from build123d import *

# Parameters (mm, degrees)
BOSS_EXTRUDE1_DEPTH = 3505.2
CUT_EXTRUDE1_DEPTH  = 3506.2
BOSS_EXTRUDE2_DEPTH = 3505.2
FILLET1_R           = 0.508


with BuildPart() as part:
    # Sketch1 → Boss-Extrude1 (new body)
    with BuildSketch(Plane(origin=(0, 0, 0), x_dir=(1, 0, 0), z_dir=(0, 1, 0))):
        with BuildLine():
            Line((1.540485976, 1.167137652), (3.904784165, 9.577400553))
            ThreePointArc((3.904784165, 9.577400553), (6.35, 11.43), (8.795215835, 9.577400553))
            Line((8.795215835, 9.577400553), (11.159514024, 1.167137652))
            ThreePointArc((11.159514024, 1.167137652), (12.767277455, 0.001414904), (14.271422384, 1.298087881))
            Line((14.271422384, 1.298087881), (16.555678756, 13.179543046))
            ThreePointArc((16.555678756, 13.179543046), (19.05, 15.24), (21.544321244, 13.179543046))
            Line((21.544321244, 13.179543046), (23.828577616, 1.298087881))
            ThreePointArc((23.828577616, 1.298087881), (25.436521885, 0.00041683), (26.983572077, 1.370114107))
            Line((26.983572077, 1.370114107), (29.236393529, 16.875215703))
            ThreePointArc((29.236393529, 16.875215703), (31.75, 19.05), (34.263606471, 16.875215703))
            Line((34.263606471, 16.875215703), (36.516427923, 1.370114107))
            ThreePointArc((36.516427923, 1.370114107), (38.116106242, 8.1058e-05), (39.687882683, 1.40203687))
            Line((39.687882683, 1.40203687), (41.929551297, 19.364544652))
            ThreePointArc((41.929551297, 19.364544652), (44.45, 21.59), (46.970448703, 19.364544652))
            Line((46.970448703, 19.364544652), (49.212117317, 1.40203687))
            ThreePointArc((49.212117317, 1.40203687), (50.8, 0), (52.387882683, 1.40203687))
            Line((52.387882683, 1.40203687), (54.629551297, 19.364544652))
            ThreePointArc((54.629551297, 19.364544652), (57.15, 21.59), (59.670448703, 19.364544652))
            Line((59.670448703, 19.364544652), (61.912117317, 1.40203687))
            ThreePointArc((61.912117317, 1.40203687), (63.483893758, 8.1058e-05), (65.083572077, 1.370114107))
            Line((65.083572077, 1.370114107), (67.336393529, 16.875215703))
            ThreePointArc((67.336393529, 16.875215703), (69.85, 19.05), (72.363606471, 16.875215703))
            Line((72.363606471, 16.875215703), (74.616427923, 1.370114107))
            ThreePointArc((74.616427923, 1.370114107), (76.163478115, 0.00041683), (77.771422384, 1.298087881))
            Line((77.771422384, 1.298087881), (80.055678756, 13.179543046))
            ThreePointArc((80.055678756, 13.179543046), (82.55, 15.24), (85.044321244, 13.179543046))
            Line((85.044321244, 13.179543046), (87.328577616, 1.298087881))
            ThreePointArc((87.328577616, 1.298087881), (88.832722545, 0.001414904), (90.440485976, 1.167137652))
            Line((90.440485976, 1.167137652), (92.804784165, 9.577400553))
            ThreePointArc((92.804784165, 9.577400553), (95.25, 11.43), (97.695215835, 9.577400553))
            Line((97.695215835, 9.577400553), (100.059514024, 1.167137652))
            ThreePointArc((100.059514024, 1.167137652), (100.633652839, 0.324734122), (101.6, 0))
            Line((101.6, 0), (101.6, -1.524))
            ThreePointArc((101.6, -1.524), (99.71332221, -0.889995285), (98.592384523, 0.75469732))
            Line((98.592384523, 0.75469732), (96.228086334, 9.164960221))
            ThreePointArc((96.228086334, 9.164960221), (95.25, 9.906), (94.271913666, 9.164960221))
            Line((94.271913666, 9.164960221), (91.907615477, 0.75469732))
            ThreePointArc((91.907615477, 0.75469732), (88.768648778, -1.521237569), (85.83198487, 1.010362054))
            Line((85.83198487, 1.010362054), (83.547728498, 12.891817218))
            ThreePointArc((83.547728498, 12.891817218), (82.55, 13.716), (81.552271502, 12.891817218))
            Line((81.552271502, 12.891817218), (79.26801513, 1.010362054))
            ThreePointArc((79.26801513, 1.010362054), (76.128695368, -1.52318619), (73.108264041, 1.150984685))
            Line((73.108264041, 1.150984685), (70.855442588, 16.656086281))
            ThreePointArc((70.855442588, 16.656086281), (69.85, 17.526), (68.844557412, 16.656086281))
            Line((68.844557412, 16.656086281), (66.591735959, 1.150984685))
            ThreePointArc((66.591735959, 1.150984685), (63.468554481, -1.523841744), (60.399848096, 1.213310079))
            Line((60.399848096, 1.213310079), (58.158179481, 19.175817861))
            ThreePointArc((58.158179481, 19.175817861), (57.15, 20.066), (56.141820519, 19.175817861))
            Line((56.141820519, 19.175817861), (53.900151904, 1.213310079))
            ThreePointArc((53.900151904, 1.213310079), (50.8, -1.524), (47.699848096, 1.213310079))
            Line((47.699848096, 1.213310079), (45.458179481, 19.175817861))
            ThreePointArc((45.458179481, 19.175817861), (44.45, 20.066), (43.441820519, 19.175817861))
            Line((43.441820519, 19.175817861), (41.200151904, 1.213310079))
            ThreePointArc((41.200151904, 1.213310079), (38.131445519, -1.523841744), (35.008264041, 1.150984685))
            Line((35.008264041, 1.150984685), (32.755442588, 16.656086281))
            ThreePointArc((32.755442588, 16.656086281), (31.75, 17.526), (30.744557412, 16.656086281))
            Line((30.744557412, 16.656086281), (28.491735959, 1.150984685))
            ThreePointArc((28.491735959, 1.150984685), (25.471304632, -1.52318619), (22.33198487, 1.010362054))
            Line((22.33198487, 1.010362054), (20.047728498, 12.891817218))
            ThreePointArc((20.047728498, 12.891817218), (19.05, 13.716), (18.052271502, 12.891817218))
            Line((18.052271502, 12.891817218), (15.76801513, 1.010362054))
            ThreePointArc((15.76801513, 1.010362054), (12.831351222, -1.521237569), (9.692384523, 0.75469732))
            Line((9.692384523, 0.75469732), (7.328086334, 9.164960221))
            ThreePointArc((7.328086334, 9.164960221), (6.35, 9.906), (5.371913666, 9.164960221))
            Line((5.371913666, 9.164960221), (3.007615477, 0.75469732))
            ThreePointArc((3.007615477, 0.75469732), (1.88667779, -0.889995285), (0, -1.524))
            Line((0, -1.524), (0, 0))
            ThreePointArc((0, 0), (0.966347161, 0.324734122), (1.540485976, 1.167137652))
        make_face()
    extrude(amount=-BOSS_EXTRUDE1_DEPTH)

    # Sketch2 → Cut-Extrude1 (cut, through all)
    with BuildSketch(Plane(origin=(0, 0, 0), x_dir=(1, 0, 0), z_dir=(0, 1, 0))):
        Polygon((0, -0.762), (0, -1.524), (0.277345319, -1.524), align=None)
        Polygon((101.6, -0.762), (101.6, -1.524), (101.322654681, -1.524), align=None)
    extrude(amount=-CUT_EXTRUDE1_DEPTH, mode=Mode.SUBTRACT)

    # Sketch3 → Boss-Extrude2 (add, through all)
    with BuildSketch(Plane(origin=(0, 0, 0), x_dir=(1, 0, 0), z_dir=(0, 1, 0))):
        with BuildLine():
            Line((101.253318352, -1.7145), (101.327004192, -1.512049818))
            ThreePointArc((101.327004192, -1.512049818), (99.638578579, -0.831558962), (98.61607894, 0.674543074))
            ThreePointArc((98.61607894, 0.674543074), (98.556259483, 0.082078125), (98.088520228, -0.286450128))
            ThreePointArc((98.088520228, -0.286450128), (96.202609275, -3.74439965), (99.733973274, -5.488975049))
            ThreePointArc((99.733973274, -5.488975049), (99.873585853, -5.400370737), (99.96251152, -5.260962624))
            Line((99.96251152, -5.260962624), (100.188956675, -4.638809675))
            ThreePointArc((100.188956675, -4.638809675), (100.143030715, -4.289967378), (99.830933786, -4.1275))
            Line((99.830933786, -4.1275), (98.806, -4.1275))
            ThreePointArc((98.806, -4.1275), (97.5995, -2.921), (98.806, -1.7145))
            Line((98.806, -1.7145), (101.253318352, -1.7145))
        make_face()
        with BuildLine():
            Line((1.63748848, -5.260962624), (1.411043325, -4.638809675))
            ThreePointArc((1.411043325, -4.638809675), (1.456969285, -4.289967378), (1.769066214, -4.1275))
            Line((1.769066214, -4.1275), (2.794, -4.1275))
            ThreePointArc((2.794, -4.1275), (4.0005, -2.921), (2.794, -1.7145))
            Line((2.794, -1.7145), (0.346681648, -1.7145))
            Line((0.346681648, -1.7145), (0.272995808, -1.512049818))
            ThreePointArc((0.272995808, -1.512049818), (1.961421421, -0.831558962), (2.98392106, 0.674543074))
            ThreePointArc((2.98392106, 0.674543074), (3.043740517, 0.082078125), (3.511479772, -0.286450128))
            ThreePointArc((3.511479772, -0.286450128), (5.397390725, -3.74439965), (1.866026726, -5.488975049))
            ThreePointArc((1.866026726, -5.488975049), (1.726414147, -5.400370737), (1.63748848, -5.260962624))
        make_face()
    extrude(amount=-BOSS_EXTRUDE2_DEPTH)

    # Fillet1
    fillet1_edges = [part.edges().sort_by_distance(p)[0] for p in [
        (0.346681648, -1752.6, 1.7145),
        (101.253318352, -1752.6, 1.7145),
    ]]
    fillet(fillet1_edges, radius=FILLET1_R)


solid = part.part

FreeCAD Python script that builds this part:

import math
import FreeCAD as App
import Part
import Sketcher
from FreeCAD import Vector
Q = App.Units.Quantity


def edges_at(feature, points):
    """Names of the edges that pass closest to the given points."""
    edges = feature.Shape.Edges
    near = lambda p: min(range(len(edges)), key=lambda i: edges[i].distToShape(Part.Vertex(*p))[0])
    return sorted({f"Edge{near(p) + 1}" for p in points})

doc = App.newDocument("Part")
body = doc.addObject("PartDesign::Body", "Body")

sketch1 = body.newObject("Sketcher::SketchObject", "Sketch")
sketch1.AttachmentSupport = (doc.getObject("XZ_Plane"), [""])
sketch1.MapMode = "FlatFace"
sketch1.addGeometry([
    Part.LineSegment(Vector(3.9, -9.6, 0), Vector(1.5, -1.2, 0)),
    Part.ArcOfCircle(Part.Circle(Vector(0, -1.6, 0), Vector(0, 0, 1), 1.6), math.radians(16), math.radians(90)),
    Part.LineSegment(Vector(0, 0, 0), Vector(0, 1.5, 0)),
    Part.ArcOfCircle(Part.Circle(Vector(0, -1.6, 0), Vector(0, 0, 1), 3.1), math.radians(16), math.radians(90)),
    Part.LineSegment(Vector(3, -0.8, 0), Vector(5.4, -9.2, 0)),
    Part.ArcOfCircle(Part.Circle(Vector(6.3, -8.9, 0), Vector(0, 0, 1), 1), math.radians(-164), math.radians(-16)),
    Part.LineSegment(Vector(7.3, -9.2, 0), Vector(9.7, -0.8, 0)),
    Part.ArcOfCircle(Part.Circle(Vector(12.7, -1.6, 0), Vector(0, 0, 1), 3.1), math.radians(11), math.radians(164)),
    Part.LineSegment(Vector(15.8, -1, 0), Vector(18.1, -12.9, 0)),
    Part.ArcOfCircle(Part.Circle(Vector(19.1, -12.7, 0), Vector(0, 0, 1), 1), math.radians(-169), math.radians(-11)),
    Part.LineSegment(Vector(20, -12.9, 0), Vector(22.3, -1, 0)),
    Part.ArcOfCircle(Part.Circle(Vector(25.4, -1.6, 0), Vector(0, 0, 1), 3.1), math.radians(8), math.radians(169)),
    Part.LineSegment(Vector(28.5, -1.2, 0), Vector(30.7, -16.7, 0)),
    Part.ArcOfCircle(Part.Circle(Vector(31.8, -16.5, 0), Vector(0, 0, 1), 1), math.radians(-172), math.radians(-8)),
    Part.LineSegment(Vector(32.8, -16.7, 0), Vector(35, -1.2, 0)),
    Part.ArcOfCircle(Part.Circle(Vector(38.1, -1.6, 0), Vector(0, 0, 1), 3.1), math.radians(7), math.radians(172)),
    Part.LineSegment(Vector(41.2, -1.2, 0), Vector(43.4, -19.2, 0)),
    Part.ArcOfCircle(Part.Circle(Vector(44.5, -19.1, 0), Vector(0, 0, 1), 1), math.radians(-173), math.radians(-7)),
    Part.LineSegment(Vector(45.5, -19.2, 0), Vector(47.7, -1.2, 0)),
    Part.ArcOfCircle(Part.Circle(Vector(50.8, -1.6, 0), Vector(0, 0, 1), 3.1), math.radians(7), math.radians(173)),
    Part.LineSegment(Vector(53.9, -1.2, 0), Vector(56.1, -19.2, 0)),
    Part.ArcOfCircle(Part.Circle(Vector(57.1, -19.1, 0), Vector(0, 0, 1), 1), math.radians(-173), math.radians(-7)),
    Part.LineSegment(Vector(58.2, -19.2, 0), Vector(60.4, -1.2, 0)),
    Part.ArcOfCircle(Part.Circle(Vector(63.5, -1.6, 0), Vector(0, 0, 1), 3.1), math.radians(8), math.radians(173)),
    Part.LineSegment(Vector(66.6, -1.2, 0), Vector(68.8, -16.7, 0)),
    Part.ArcOfCircle(Part.Circle(Vector(69.8, -16.5, 0), Vector(0, 0, 1), 1), math.radians(-172), math.radians(-8)),
    Part.LineSegment(Vector(70.9, -16.7, 0), Vector(73.1, -1.2, 0)),
    Part.ArcOfCircle(Part.Circle(Vector(76.2, -1.6, 0), Vector(0, 0, 1), 3.1), math.radians(11), math.radians(172)),
    Part.LineSegment(Vector(79.3, -1, 0), Vector(81.6, -12.9, 0)),
    Part.ArcOfCircle(Part.Circle(Vector(82.5, -12.7, 0), Vector(0, 0, 1), 1), math.radians(-169), math.radians(-11)),
    Part.LineSegment(Vector(83.5, -12.9, 0), Vector(85.8, -1, 0)),
    Part.ArcOfCircle(Part.Circle(Vector(88.9, -1.6, 0), Vector(0, 0, 1), 3.1), math.radians(16), math.radians(169)),
    Part.LineSegment(Vector(91.9, -0.8, 0), Vector(94.3, -9.2, 0)),
    Part.ArcOfCircle(Part.Circle(Vector(95.2, -8.9, 0), Vector(0, 0, 1), 1), math.radians(-164), math.radians(-16)),
    Part.LineSegment(Vector(96.2, -9.2, 0), Vector(98.6, -0.8, 0)),
    Part.ArcOfCircle(Part.Circle(Vector(101.6, -1.6, 0), Vector(0, 0, 1), 3.1), math.radians(90), math.radians(164)),
    Part.LineSegment(Vector(101.6, 1.5, 0), Vector(101.6, 0, 0)),
    Part.ArcOfCircle(Part.Circle(Vector(101.6, -1.6, 0), Vector(0, 0, 1), 1.6), math.radians(90), math.radians(164)),
    Part.LineSegment(Vector(100.1, -1.2, 0), Vector(97.7, -9.6, 0)),
    Part.ArcOfCircle(Part.Circle(Vector(95.2, -8.9, 0), Vector(0, 0, 1), 2.5), math.radians(-164), math.radians(-16)),
    Part.LineSegment(Vector(92.8, -9.6, 0), Vector(90.4, -1.2, 0)),
    Part.ArcOfCircle(Part.Circle(Vector(88.9, -1.6, 0), Vector(0, 0, 1), 1.6), math.radians(16), math.radians(169)),
    Part.LineSegment(Vector(87.3, -1.3, 0), Vector(85, -13.2, 0)),
    Part.ArcOfCircle(Part.Circle(Vector(82.5, -12.7, 0), Vector(0, 0, 1), 2.5), math.radians(-169), math.radians(-11)),
    Part.LineSegment(Vector(80.1, -13.2, 0), Vector(77.8, -1.3, 0)),
    Part.ArcOfCircle(Part.Circle(Vector(76.2, -1.6, 0), Vector(0, 0, 1), 1.6), math.radians(11), math.radians(172)),
    Part.LineSegment(Vector(74.6, -1.4, 0), Vector(72.4, -16.9, 0)),
    Part.ArcOfCircle(Part.Circle(Vector(69.8, -16.5, 0), Vector(0, 0, 1), 2.5), math.radians(-172), math.radians(-8)),
    Part.LineSegment(Vector(67.3, -16.9, 0), Vector(65.1, -1.4, 0)),
    Part.ArcOfCircle(Part.Circle(Vector(63.5, -1.6, 0), Vector(0, 0, 1), 1.6), math.radians(8), math.radians(173)),
    Part.LineSegment(Vector(61.9, -1.4, 0), Vector(59.7, -19.4, 0)),
    Part.ArcOfCircle(Part.Circle(Vector(57.1, -19, 0), Vector(0, 0, 1), 2.5), math.radians(-173), math.radians(-7)),
    Part.LineSegment(Vector(54.6, -19.4, 0), Vector(52.4, -1.4, 0)),
    Part.ArcOfCircle(Part.Circle(Vector(50.8, -1.6, 0), Vector(0, 0, 1), 1.6), math.radians(7), math.radians(173)),
    Part.LineSegment(Vector(49.2, -1.4, 0), Vector(47, -19.4, 0)),
    Part.ArcOfCircle(Part.Circle(Vector(44.5, -19, 0), Vector(0, 0, 1), 2.5), math.radians(-173), math.radians(-7)),
    Part.LineSegment(Vector(41.9, -19.4, 0), Vector(39.7, -1.4, 0)),
    Part.ArcOfCircle(Part.Circle(Vector(38.1, -1.6, 0), Vector(0, 0, 1), 1.6), math.radians(7), math.radians(172)),
    Part.LineSegment(Vector(36.5, -1.4, 0), Vector(34.3, -16.9, 0)),
    Part.ArcOfCircle(Part.Circle(Vector(31.8, -16.5, 0), Vector(0, 0, 1), 2.5), math.radians(-172), math.radians(-8)),
    Part.LineSegment(Vector(29.2, -16.9, 0), Vector(27, -1.4, 0)),
    Part.ArcOfCircle(Part.Circle(Vector(25.4, -1.6, 0), Vector(0, 0, 1), 1.6), math.radians(8), math.radians(169)),
    Part.LineSegment(Vector(23.8, -1.3, 0), Vector(21.5, -13.2, 0)),
    Part.ArcOfCircle(Part.Circle(Vector(19.1, -12.7, 0), Vector(0, 0, 1), 2.5), math.radians(-169), math.radians(-11)),
    Part.LineSegment(Vector(16.6, -13.2, 0), Vector(14.3, -1.3, 0)),
    Part.ArcOfCircle(Part.Circle(Vector(12.7, -1.6, 0), Vector(0, 0, 1), 1.6), math.radians(11), math.radians(164)),
    Part.LineSegment(Vector(11.2, -1.2, 0), Vector(8.8, -9.6, 0)),
    Part.ArcOfCircle(Part.Circle(Vector(6.3, -8.9, 0), Vector(0, 0, 1), 2.5), math.radians(-164), math.radians(-16)),
], False)
sketch1.addConstraint([
    Sketcher.Constraint("Tangent", 0, 2, 1, 1),
    Sketcher.Constraint("Coincident", 1, 2, 2, 1),
    Sketcher.Constraint("Coincident", 2, 2, 3, 2),
    Sketcher.Constraint("Tangent", 3, 1, 4, 1),
    Sketcher.Constraint("Tangent", 4, 2, 5, 1),
    Sketcher.Constraint("Tangent", 5, 2, 6, 1),
    Sketcher.Constraint("Tangent", 6, 2, 7, 2),
    Sketcher.Constraint("Tangent", 7, 1, 8, 1),
    Sketcher.Constraint("Tangent", 8, 2, 9, 1),
    Sketcher.Constraint("Tangent", 9, 2, 10, 1),
    Sketcher.Constraint("Tangent", 10, 2, 11, 2),
    Sketcher.Constraint("Tangent", 11, 1, 12, 1),
    Sketcher.Constraint("Tangent", 12, 2, 13, 1),
    Sketcher.Constraint("Tangent", 13, 2, 14, 1),
    Sketcher.Constraint("Tangent", 14, 2, 15, 2),
    Sketcher.Constraint("Tangent", 15, 1, 16, 1),
    Sketcher.Constraint("Tangent", 16, 2, 17, 1),
    Sketcher.Constraint("Tangent", 17, 2, 18, 1),
    Sketcher.Constraint("Tangent", 18, 2, 19, 2),
    Sketcher.Constraint("Tangent", 19, 1, 20, 1),
    Sketcher.Constraint("Tangent", 20, 2, 21, 1),
    Sketcher.Constraint("Tangent", 21, 2, 22, 1),
    Sketcher.Constraint("Tangent", 22, 2, 23, 2),
    Sketcher.Constraint("Tangent", 23, 1, 24, 1),
    Sketcher.Constraint("Tangent", 24, 2, 25, 1),
    Sketcher.Constraint("Tangent", 25, 2, 26, 1),
    Sketcher.Constraint("Tangent", 26, 2, 27, 2),
    Sketcher.Constraint("Tangent", 27, 1, 28, 1),
    Sketcher.Constraint("Tangent", 28, 2, 29, 1),
    Sketcher.Constraint("Tangent", 29, 2, 30, 1),
    Sketcher.Constraint("Tangent", 30, 2, 31, 2),
    Sketcher.Constraint("Tangent", 31, 1, 32, 1),
    Sketcher.Constraint("Tangent", 32, 2, 33, 1),
    Sketcher.Constraint("Tangent", 33, 2, 34, 1),
    Sketcher.Constraint("Tangent", 34, 2, 35, 2),
    Sketcher.Constraint("Coincident", 35, 1, 36, 1),
    Sketcher.Constraint("Coincident", 36, 2, 37, 1),
    Sketcher.Constraint("Tangent", 37, 2, 38, 1),
    Sketcher.Constraint("Tangent", 38, 2, 39, 2),
    Sketcher.Constraint("Tangent", 39, 1, 40, 1),
    Sketcher.Constraint("Tangent", 40, 2, 41, 1),
    Sketcher.Constraint("Tangent", 41, 2, 42, 1),
    Sketcher.Constraint("Tangent", 42, 2, 43, 2),
    Sketcher.Constraint("Tangent", 43, 1, 44, 1),
    Sketcher.Constraint("Tangent", 44, 2, 45, 1),
    Sketcher.Constraint("Tangent", 45, 2, 46, 1),
    Sketcher.Constraint("Tangent", 46, 2, 47, 2),
    Sketcher.Constraint("Tangent", 47, 1, 48, 1),
    Sketcher.Constraint("Tangent", 48, 2, 49, 1),
    Sketcher.Constraint("Tangent", 49, 2, 50, 1),
    Sketcher.Constraint("Tangent", 50, 2, 51, 2),
    Sketcher.Constraint("Tangent", 51, 1, 52, 1),
    Sketcher.Constraint("Tangent", 52, 2, 53, 1),
    Sketcher.Constraint("Tangent", 53, 2, 54, 1),
    Sketcher.Constraint("Tangent", 54, 2, 55, 2),
    Sketcher.Constraint("Tangent", 55, 1, 56, 1),
    Sketcher.Constraint("Tangent", 56, 2, 57, 1),
    Sketcher.Constraint("Tangent", 57, 2, 58, 1),
    Sketcher.Constraint("Tangent", 58, 2, 59, 2),
    Sketcher.Constraint("Tangent", 59, 1, 60, 1),
    Sketcher.Constraint("Tangent", 60, 2, 61, 1),
    Sketcher.Constraint("Tangent", 61, 2, 62, 1),
    Sketcher.Constraint("Tangent", 62, 2, 63, 2),
    Sketcher.Constraint("Tangent", 63, 1, 64, 1),
    Sketcher.Constraint("Tangent", 64, 2, 65, 1),
    Sketcher.Constraint("Tangent", 65, 2, 66, 1),
    Sketcher.Constraint("Tangent", 66, 2, 67, 2),
    Sketcher.Constraint("Tangent", 67, 1, 0, 1),
    Sketcher.Constraint("Vertical", 2),
    Sketcher.Constraint("Vertical", 36),
    Sketcher.Constraint("Coincident", 1, 2, -1, 1),
    Sketcher.Constraint("Coincident", 3, 3, 1, 3),
    Sketcher.Constraint("Coincident", 37, 3, 35, 3),
    Sketcher.Constraint("Coincident", 39, 3, 33, 3),
    Sketcher.Constraint("Coincident", 41, 3, 31, 3),
    Sketcher.Constraint("Coincident", 43, 3, 29, 3),
    Sketcher.Constraint("Coincident", 45, 3, 27, 3),
    Sketcher.Constraint("Coincident", 47, 3, 25, 3),
    Sketcher.Constraint("Coincident", 49, 3, 23, 3),
    Sketcher.Constraint("Coincident", 51, 3, 21, 3),
    Sketcher.Constraint("Coincident", 53, 3, 19, 3),
    Sketcher.Constraint("Coincident", 55, 3, 17, 3),
    Sketcher.Constraint("Coincident", 57, 3, 15, 3),
    Sketcher.Constraint("Coincident", 59, 3, 13, 3),
    Sketcher.Constraint("Coincident", 61, 3, 11, 3),
    Sketcher.Constraint("Coincident", 63, 3, 9, 3),
    Sketcher.Constraint("Coincident", 65, 3, 7, 3),
    Sketcher.Constraint("Coincident", 67, 3, 5, 3),
    Sketcher.Constraint("Equal", 3, 7),
    Sketcher.Constraint("Equal", 5, 9),
    Sketcher.Constraint("Equal", 7, 11),
    Sketcher.Constraint("Equal", 9, 13),
    Sketcher.Constraint("Equal", 11, 15),
    Sketcher.Constraint("Equal", 13, 17),
    Sketcher.Constraint("Equal", 15, 19),
    Sketcher.Constraint("Equal", 17, 21),
    Sketcher.Constraint("Equal", 19, 23),
    Sketcher.Constraint("Equal", 21, 25),
    Sketcher.Constraint("Equal", 23, 27),
    Sketcher.Constraint("Equal", 25, 29),
    Sketcher.Constraint("Equal", 27, 31),
    Sketcher.Constraint("Equal", 29, 33),
    Sketcher.Constraint("Equal", 31, 35),
    Sketcher.Constraint("Equal", 1, 37),
    Sketcher.Constraint("Equal", 37, 41),
    Sketcher.Constraint("Equal", 39, 43),
    Sketcher.Constraint("Equal", 41, 45),
    Sketcher.Constraint("Equal", 43, 47),
    Sketcher.Constraint("Equal", 45, 49),
    Sketcher.Constraint("Equal", 47, 51),
    Sketcher.Constraint("Equal", 49, 53),
    Sketcher.Constraint("Equal", 51, 55),
    Sketcher.Constraint("Equal", 53, 57),
    Sketcher.Constraint("Equal", 55, 59),
    Sketcher.Constraint("Equal", 57, 61),
    Sketcher.Constraint("Equal", 59, 63),
    Sketcher.Constraint("Equal", 61, 65),
    Sketcher.Constraint("Equal", 63, 67),
    Sketcher.Constraint("PointOnObject", 1, 3, -2),
    Sketcher.Constraint("PointOnObject", 36, 2, -1),
    Sketcher.Constraint("Parallel", 0, 4),
    Sketcher.Constraint("Parallel", 16, 20),
    Sketcher.Constraint("Parallel", 18, 22),
    Sketcher.Constraint("Parallel", 12, 24),
    Sketcher.Constraint("Parallel", 14, 26),
    Sketcher.Constraint("Parallel", 8, 28),
    Sketcher.Constraint("Parallel", 10, 30),
    Sketcher.Constraint("Parallel", 4, 32),
    Sketcher.Constraint("Parallel", 6, 34),
    Sketcher.Constraint("Horizontal", 3, 3, 7, 3),
    Sketcher.Constraint("Horizontal", 7, 3, 11, 3),
    Sketcher.Constraint("Horizontal", 11, 3, 15, 3),
    Sketcher.Constraint("Horizontal", 15, 3, 19, 3),
    Sketcher.Constraint("Horizontal", 17, 3, 21, 3),
    Sketcher.Constraint("Horizontal", 19, 3, 23, 3),
    Sketcher.Constraint("Horizontal", 13, 3, 25, 3),
    Sketcher.Constraint("Horizontal", 23, 3, 27, 3),
    Sketcher.Constraint("Horizontal", 9, 3, 29, 3),
    Sketcher.Constraint("Horizontal", 27, 3, 31, 3),
    Sketcher.Constraint("Horizontal", 5, 3, 33, 3),
    Sketcher.Constraint("Horizontal", 4, 2, 5, 2),
    Sketcher.Constraint("Horizontal", 8, 2, 9, 2),
    Sketcher.Constraint("Horizontal", 12, 2, 13, 2),
    Sketcher.Constraint("Horizontal", 16, 2, 17, 2),
    Sketcher.Constraint("Vertical", 37, 3, 35, 1),
    Sketcher.Constraint("Radius", 39, Q("0.1 in")),
    Sketcher.Constraint("Radius", 5, Q("0.04 in")),
    Sketcher.Constraint("DistanceX", -1, 1, 11, 3, Q("1 in")),
    Sketcher.Constraint("DistanceX", -1, 1, 19, 3, Q("2 in")),
    Sketcher.Constraint("Radius", 1, Q("0.063 in")),
    Sketcher.Constraint("DistanceX", -1, 1, 7, 3, Q("0.5 in")),
    Sketcher.Constraint("DistanceY", 9, 3, -1, 1, Q("0.5 in")),
    Sketcher.Constraint("DistanceX", -1, 1, 15, 3, Q("1.5 in")),
    Sketcher.Constraint("DistanceY", 5, 3, -1, 1, Q("0.35 in")),
    Sketcher.Constraint("DistanceY", 13, 3, -1, 1, Q("0.65 in")),
    Sketcher.Constraint("DistanceY", 17, 3, -1, 1, Q("0.75 in")),
])
pad1 = body.newObject("PartDesign::Pad", "Pad")
pad1.Profile = sketch1
pad1.Length = Q("138 in")

sketch2 = body.newObject("Sketcher::SketchObject", "Sketch001")
sketch2.AttachmentSupport = (doc.getObject("XZ_Plane"), [""])
sketch2.MapMode = "FlatFace"
sketch2.addGeometry([
    Part.LineSegment(Vector(0, 0.76, 0), Vector(0, 1.52, 0)),
    Part.LineSegment(Vector(0, 1.52, 0), Vector(0.28, 1.52, 0)),
    Part.LineSegment(Vector(0.28, 1.52, 0), Vector(0, 0.76, 0)),
    Part.LineSegment(Vector(101.6, 1.52, 0), Vector(101.6, 0.76, 0)),
    Part.LineSegment(Vector(101.6, 0.76, 0), Vector(101.32, 1.52, 0)),
    Part.LineSegment(Vector(101.32, 1.52, 0), Vector(101.6, 1.52, 0)),
], False)
sketch2.addConstraint([
    Sketcher.Constraint("Coincident", 0, 2, 1, 1),
    Sketcher.Constraint("Coincident", 1, 2, 2, 1),
    Sketcher.Constraint("Coincident", 2, 2, 0, 1),
    Sketcher.Constraint("Coincident", 3, 2, 4, 1),
    Sketcher.Constraint("Coincident", 4, 2, 5, 1),
    Sketcher.Constraint("Coincident", 5, 2, 3, 1),
    Sketcher.Constraint("Vertical", 0),
    Sketcher.Constraint("Horizontal", 1),
    Sketcher.Constraint("Vertical", 3),
    Sketcher.Constraint("Horizontal", 5),
    Sketcher.Constraint("PointOnObject", 0, 2, -2),
    Sketcher.Constraint("Horizontal", 2, 2, 3, 2),
    Sketcher.Constraint("Horizontal", 1, 2, 4, 2),
    Sketcher.Constraint("Equal", 1, 5),
    Sketcher.Constraint("DistanceX", -1, 1, 3, 2, Q("4 in")),
    Sketcher.Constraint("Angle", 2, Q("-110 deg")),
    Sketcher.Constraint("DistanceY", 0, 1, 0, 2, Q("0.03 in")),
    Sketcher.Constraint("DistanceY", -1, 1, 0, 2, Q("0.06 in")),
])
pocket1 = body.newObject("PartDesign::Pocket", "Pocket")
pocket1.Profile = sketch2
pocket1.Type = "ThroughAll"
pocket1.Reversed = True

sketch3 = body.newObject("Sketcher::SketchObject", "Sketch002")
sketch3.AttachmentSupport = (doc.getObject("XZ_Plane"), [""])
sketch3.MapMode = "FlatFace"
sketch3.addGeometry([
    Part.LineSegment(Vector(101.25, 1.71, 0), Vector(101.33, 1.51, 0)),
    Part.ArcOfCircle(Part.Circle(Vector(101.6, -1.6, 0), Vector(0, 0, 1), 3.12), math.radians(95), math.radians(163)),
    Part.ArcOfCircle(Part.Circle(Vector(97.89, -0.45, 0), Vector(0, 0, 1), 0.76), math.radians(-17), math.radians(75)),
    Part.ArcOfCircle(Part.Circle(Vector(98.81, 2.92, 0), Vector(0, 0, 1), 2.73), math.radians(70), math.radians(255)),
    Part.ArcOfCircle(Part.Circle(Vector(99.6, 5.13, 0), Vector(0, 0, 1), 0.38), math.radians(20), math.radians(70)),
    Part.LineSegment(Vector(99.96, 5.26, 0), Vector(100.19, 4.64, 0)),
    Part.ArcOfCircle(Part.Circle(Vector(99.83, 4.51, 0), Vector(0, 0, 1), 0.38), math.radians(-90), math.radians(20)),
    Part.LineSegment(Vector(99.83, 4.13, 0), Vector(98.81, 4.13, 0)),
    Part.ArcOfCircle(Part.Circle(Vector(98.81, 2.92, 0), Vector(0, 0, 1), 1.21), math.radians(90), math.radians(270)),
    Part.LineSegment(Vector(98.81, 1.71, 0), Vector(101.25, 1.71, 0)),
    Part.LineSegment(Vector(1.41, 4.64, 0), Vector(1.64, 5.26, 0)),
    Part.ArcOfCircle(Part.Circle(Vector(2, 5.13, 0), Vector(0, 0, 1), 0.38), math.radians(110), math.radians(160)),
    Part.ArcOfCircle(Part.Circle(Vector(2.79, 2.92, 0), Vector(0, 0, 1), 2.73), math.radians(-75), math.radians(110)),
    Part.ArcOfCircle(Part.Circle(Vector(3.71, -0.45, 0), Vector(0, 0, 1), 0.76), math.radians(105), math.radians(197)),
    Part.ArcOfCircle(Part.Circle(Vector(0, -1.6, 0), Vector(0, 0, 1), 3.12), math.radians(17), math.radians(85)),
    Part.LineSegment(Vector(0.27, 1.51, 0), Vector(0.35, 1.71, 0)),
    Part.LineSegment(Vector(0.35, 1.71, 0), Vector(2.79, 1.71, 0)),
    Part.ArcOfCircle(Part.Circle(Vector(2.79, 2.92, 0), Vector(0, 0, 1), 1.21), math.radians(-90), math.radians(90)),
    Part.LineSegment(Vector(2.79, 4.13, 0), Vector(1.77, 4.13, 0)),
    Part.ArcOfCircle(Part.Circle(Vector(1.77, 4.51, 0), Vector(0, 0, 1), 0.38), math.radians(160), math.radians(270)),
], False)
sketch3.addConstraint([
    Sketcher.Constraint("Coincident", 0, 2, 1, 1),
    Sketcher.Constraint("Tangent", 1, 2, 2, 1),
    Sketcher.Constraint("Tangent", 2, 2, 3, 2),
    Sketcher.Constraint("Tangent", 3, 1, 4, 2),
    Sketcher.Constraint("Tangent", 4, 1, 5, 1),
    Sketcher.Constraint("Tangent", 5, 2, 6, 2),
    Sketcher.Constraint("Tangent", 6, 1, 7, 1),
    Sketcher.Constraint("Tangent", 7, 2, 8, 1),
    Sketcher.Constraint("Tangent", 8, 2, 9, 1),
    Sketcher.Constraint("Coincident", 9, 2, 0, 1),
    Sketcher.Constraint("Tangent", 10, 2, 11, 2),
    Sketcher.Constraint("Tangent", 11, 1, 12, 2),
    Sketcher.Constraint("Tangent", 12, 1, 13, 1),
    Sketcher.Constraint("Tangent", 13, 2, 14, 1),
    Sketcher.Constraint("Coincident", 14, 2, 15, 1),
    Sketcher.Constraint("Coincident", 15, 2, 16, 1),
    Sketcher.Constraint("Tangent", 16, 2, 17, 1),
    Sketcher.Constraint("Tangent", 17, 2, 18, 1),
    Sketcher.Constraint("Tangent", 18, 2, 19, 2),
    Sketcher.Constraint("Tangent", 19, 1, 10, 1),
    Sketcher.Constraint("Horizontal", 7),
    Sketcher.Constraint("Horizontal", 9),
    Sketcher.Constraint("Horizontal", 16),
    Sketcher.Constraint("Horizontal", 18),
    Sketcher.Constraint("Coincident", 8, 3, 3, 3),
    Sketcher.Constraint("Coincident", 17, 3, 12, 3),
    Sketcher.Constraint("Equal", 4, 6),
    Sketcher.Constraint("Equal", 6, 11),
    Sketcher.Constraint("Equal", 3, 12),
    Sketcher.Constraint("Equal", 2, 13),
    Sketcher.Constraint("Equal", 1, 14),
    Sketcher.Constraint("Equal", 8, 17),
    Sketcher.Constraint("Equal", 11, 19),
    Sketcher.Constraint("PointOnObject", 14, 3, -2),
    Sketcher.Constraint("Parallel", 0, 5),
    Sketcher.Constraint("Parallel", 10, 15),
    Sketcher.Constraint("Horizontal", 4, 3, 11, 3),
    Sketcher.Constraint("Horizontal", 8, 3, 12, 3),
    Sketcher.Constraint("Horizontal", 2, 3, 13, 3),
    Sketcher.Constraint("Horizontal", 1, 3, 14, 3),
    Sketcher.Constraint("Horizontal", 4, 1, 10, 2),
    Sketcher.Constraint("Horizontal", 0, 2, 14, 2),
    Sketcher.Constraint("Radius", 2, Q("0.03 in")),
    Sketcher.Constraint("DistanceX", -1, 1, 1, 3, Q("4 in")),
    Sketcher.Constraint("Angle", 0, Q("-70 deg")),
    Sketcher.Constraint("Radius", 1, Q("0.123 in")),
    Sketcher.Constraint("Radius", 4, Q("0.015 in")),
    Sketcher.Constraint("Radius", 3, Q("0.1075 in")),
    Sketcher.Constraint("Radius", 8, Q("0.0475 in")),
    Sketcher.Constraint("DistanceX", -1, 1, 3, 3, Q("3.89 in")),
    Sketcher.Constraint("DistanceY", 1, 3, -1, 1, Q("0.063 in")),
    Sketcher.Constraint("DistanceY", -1, 1, 3, 3, Q("0.115 in")),
    Sketcher.Constraint("DistanceX", 9, 1, 9, 2, 2.447318),
    Sketcher.Constraint("Distance", 5, 0.662081),
])
pad2 = body.newObject("PartDesign::Pad", "Pad001")
pad2.Profile = sketch3
pad2.Length = Q("138 in")
doc.recompute()

fillet = body.newObject("PartDesign::Fillet", "Fillet")
fillet.Base = (pad2, edges_at(pad2, [(0.347, -1752.6, 1.714), (101.253, -1752.6, 1.714)]))
fillet.Radius = Q("0.02 in")

doc.recompute()
